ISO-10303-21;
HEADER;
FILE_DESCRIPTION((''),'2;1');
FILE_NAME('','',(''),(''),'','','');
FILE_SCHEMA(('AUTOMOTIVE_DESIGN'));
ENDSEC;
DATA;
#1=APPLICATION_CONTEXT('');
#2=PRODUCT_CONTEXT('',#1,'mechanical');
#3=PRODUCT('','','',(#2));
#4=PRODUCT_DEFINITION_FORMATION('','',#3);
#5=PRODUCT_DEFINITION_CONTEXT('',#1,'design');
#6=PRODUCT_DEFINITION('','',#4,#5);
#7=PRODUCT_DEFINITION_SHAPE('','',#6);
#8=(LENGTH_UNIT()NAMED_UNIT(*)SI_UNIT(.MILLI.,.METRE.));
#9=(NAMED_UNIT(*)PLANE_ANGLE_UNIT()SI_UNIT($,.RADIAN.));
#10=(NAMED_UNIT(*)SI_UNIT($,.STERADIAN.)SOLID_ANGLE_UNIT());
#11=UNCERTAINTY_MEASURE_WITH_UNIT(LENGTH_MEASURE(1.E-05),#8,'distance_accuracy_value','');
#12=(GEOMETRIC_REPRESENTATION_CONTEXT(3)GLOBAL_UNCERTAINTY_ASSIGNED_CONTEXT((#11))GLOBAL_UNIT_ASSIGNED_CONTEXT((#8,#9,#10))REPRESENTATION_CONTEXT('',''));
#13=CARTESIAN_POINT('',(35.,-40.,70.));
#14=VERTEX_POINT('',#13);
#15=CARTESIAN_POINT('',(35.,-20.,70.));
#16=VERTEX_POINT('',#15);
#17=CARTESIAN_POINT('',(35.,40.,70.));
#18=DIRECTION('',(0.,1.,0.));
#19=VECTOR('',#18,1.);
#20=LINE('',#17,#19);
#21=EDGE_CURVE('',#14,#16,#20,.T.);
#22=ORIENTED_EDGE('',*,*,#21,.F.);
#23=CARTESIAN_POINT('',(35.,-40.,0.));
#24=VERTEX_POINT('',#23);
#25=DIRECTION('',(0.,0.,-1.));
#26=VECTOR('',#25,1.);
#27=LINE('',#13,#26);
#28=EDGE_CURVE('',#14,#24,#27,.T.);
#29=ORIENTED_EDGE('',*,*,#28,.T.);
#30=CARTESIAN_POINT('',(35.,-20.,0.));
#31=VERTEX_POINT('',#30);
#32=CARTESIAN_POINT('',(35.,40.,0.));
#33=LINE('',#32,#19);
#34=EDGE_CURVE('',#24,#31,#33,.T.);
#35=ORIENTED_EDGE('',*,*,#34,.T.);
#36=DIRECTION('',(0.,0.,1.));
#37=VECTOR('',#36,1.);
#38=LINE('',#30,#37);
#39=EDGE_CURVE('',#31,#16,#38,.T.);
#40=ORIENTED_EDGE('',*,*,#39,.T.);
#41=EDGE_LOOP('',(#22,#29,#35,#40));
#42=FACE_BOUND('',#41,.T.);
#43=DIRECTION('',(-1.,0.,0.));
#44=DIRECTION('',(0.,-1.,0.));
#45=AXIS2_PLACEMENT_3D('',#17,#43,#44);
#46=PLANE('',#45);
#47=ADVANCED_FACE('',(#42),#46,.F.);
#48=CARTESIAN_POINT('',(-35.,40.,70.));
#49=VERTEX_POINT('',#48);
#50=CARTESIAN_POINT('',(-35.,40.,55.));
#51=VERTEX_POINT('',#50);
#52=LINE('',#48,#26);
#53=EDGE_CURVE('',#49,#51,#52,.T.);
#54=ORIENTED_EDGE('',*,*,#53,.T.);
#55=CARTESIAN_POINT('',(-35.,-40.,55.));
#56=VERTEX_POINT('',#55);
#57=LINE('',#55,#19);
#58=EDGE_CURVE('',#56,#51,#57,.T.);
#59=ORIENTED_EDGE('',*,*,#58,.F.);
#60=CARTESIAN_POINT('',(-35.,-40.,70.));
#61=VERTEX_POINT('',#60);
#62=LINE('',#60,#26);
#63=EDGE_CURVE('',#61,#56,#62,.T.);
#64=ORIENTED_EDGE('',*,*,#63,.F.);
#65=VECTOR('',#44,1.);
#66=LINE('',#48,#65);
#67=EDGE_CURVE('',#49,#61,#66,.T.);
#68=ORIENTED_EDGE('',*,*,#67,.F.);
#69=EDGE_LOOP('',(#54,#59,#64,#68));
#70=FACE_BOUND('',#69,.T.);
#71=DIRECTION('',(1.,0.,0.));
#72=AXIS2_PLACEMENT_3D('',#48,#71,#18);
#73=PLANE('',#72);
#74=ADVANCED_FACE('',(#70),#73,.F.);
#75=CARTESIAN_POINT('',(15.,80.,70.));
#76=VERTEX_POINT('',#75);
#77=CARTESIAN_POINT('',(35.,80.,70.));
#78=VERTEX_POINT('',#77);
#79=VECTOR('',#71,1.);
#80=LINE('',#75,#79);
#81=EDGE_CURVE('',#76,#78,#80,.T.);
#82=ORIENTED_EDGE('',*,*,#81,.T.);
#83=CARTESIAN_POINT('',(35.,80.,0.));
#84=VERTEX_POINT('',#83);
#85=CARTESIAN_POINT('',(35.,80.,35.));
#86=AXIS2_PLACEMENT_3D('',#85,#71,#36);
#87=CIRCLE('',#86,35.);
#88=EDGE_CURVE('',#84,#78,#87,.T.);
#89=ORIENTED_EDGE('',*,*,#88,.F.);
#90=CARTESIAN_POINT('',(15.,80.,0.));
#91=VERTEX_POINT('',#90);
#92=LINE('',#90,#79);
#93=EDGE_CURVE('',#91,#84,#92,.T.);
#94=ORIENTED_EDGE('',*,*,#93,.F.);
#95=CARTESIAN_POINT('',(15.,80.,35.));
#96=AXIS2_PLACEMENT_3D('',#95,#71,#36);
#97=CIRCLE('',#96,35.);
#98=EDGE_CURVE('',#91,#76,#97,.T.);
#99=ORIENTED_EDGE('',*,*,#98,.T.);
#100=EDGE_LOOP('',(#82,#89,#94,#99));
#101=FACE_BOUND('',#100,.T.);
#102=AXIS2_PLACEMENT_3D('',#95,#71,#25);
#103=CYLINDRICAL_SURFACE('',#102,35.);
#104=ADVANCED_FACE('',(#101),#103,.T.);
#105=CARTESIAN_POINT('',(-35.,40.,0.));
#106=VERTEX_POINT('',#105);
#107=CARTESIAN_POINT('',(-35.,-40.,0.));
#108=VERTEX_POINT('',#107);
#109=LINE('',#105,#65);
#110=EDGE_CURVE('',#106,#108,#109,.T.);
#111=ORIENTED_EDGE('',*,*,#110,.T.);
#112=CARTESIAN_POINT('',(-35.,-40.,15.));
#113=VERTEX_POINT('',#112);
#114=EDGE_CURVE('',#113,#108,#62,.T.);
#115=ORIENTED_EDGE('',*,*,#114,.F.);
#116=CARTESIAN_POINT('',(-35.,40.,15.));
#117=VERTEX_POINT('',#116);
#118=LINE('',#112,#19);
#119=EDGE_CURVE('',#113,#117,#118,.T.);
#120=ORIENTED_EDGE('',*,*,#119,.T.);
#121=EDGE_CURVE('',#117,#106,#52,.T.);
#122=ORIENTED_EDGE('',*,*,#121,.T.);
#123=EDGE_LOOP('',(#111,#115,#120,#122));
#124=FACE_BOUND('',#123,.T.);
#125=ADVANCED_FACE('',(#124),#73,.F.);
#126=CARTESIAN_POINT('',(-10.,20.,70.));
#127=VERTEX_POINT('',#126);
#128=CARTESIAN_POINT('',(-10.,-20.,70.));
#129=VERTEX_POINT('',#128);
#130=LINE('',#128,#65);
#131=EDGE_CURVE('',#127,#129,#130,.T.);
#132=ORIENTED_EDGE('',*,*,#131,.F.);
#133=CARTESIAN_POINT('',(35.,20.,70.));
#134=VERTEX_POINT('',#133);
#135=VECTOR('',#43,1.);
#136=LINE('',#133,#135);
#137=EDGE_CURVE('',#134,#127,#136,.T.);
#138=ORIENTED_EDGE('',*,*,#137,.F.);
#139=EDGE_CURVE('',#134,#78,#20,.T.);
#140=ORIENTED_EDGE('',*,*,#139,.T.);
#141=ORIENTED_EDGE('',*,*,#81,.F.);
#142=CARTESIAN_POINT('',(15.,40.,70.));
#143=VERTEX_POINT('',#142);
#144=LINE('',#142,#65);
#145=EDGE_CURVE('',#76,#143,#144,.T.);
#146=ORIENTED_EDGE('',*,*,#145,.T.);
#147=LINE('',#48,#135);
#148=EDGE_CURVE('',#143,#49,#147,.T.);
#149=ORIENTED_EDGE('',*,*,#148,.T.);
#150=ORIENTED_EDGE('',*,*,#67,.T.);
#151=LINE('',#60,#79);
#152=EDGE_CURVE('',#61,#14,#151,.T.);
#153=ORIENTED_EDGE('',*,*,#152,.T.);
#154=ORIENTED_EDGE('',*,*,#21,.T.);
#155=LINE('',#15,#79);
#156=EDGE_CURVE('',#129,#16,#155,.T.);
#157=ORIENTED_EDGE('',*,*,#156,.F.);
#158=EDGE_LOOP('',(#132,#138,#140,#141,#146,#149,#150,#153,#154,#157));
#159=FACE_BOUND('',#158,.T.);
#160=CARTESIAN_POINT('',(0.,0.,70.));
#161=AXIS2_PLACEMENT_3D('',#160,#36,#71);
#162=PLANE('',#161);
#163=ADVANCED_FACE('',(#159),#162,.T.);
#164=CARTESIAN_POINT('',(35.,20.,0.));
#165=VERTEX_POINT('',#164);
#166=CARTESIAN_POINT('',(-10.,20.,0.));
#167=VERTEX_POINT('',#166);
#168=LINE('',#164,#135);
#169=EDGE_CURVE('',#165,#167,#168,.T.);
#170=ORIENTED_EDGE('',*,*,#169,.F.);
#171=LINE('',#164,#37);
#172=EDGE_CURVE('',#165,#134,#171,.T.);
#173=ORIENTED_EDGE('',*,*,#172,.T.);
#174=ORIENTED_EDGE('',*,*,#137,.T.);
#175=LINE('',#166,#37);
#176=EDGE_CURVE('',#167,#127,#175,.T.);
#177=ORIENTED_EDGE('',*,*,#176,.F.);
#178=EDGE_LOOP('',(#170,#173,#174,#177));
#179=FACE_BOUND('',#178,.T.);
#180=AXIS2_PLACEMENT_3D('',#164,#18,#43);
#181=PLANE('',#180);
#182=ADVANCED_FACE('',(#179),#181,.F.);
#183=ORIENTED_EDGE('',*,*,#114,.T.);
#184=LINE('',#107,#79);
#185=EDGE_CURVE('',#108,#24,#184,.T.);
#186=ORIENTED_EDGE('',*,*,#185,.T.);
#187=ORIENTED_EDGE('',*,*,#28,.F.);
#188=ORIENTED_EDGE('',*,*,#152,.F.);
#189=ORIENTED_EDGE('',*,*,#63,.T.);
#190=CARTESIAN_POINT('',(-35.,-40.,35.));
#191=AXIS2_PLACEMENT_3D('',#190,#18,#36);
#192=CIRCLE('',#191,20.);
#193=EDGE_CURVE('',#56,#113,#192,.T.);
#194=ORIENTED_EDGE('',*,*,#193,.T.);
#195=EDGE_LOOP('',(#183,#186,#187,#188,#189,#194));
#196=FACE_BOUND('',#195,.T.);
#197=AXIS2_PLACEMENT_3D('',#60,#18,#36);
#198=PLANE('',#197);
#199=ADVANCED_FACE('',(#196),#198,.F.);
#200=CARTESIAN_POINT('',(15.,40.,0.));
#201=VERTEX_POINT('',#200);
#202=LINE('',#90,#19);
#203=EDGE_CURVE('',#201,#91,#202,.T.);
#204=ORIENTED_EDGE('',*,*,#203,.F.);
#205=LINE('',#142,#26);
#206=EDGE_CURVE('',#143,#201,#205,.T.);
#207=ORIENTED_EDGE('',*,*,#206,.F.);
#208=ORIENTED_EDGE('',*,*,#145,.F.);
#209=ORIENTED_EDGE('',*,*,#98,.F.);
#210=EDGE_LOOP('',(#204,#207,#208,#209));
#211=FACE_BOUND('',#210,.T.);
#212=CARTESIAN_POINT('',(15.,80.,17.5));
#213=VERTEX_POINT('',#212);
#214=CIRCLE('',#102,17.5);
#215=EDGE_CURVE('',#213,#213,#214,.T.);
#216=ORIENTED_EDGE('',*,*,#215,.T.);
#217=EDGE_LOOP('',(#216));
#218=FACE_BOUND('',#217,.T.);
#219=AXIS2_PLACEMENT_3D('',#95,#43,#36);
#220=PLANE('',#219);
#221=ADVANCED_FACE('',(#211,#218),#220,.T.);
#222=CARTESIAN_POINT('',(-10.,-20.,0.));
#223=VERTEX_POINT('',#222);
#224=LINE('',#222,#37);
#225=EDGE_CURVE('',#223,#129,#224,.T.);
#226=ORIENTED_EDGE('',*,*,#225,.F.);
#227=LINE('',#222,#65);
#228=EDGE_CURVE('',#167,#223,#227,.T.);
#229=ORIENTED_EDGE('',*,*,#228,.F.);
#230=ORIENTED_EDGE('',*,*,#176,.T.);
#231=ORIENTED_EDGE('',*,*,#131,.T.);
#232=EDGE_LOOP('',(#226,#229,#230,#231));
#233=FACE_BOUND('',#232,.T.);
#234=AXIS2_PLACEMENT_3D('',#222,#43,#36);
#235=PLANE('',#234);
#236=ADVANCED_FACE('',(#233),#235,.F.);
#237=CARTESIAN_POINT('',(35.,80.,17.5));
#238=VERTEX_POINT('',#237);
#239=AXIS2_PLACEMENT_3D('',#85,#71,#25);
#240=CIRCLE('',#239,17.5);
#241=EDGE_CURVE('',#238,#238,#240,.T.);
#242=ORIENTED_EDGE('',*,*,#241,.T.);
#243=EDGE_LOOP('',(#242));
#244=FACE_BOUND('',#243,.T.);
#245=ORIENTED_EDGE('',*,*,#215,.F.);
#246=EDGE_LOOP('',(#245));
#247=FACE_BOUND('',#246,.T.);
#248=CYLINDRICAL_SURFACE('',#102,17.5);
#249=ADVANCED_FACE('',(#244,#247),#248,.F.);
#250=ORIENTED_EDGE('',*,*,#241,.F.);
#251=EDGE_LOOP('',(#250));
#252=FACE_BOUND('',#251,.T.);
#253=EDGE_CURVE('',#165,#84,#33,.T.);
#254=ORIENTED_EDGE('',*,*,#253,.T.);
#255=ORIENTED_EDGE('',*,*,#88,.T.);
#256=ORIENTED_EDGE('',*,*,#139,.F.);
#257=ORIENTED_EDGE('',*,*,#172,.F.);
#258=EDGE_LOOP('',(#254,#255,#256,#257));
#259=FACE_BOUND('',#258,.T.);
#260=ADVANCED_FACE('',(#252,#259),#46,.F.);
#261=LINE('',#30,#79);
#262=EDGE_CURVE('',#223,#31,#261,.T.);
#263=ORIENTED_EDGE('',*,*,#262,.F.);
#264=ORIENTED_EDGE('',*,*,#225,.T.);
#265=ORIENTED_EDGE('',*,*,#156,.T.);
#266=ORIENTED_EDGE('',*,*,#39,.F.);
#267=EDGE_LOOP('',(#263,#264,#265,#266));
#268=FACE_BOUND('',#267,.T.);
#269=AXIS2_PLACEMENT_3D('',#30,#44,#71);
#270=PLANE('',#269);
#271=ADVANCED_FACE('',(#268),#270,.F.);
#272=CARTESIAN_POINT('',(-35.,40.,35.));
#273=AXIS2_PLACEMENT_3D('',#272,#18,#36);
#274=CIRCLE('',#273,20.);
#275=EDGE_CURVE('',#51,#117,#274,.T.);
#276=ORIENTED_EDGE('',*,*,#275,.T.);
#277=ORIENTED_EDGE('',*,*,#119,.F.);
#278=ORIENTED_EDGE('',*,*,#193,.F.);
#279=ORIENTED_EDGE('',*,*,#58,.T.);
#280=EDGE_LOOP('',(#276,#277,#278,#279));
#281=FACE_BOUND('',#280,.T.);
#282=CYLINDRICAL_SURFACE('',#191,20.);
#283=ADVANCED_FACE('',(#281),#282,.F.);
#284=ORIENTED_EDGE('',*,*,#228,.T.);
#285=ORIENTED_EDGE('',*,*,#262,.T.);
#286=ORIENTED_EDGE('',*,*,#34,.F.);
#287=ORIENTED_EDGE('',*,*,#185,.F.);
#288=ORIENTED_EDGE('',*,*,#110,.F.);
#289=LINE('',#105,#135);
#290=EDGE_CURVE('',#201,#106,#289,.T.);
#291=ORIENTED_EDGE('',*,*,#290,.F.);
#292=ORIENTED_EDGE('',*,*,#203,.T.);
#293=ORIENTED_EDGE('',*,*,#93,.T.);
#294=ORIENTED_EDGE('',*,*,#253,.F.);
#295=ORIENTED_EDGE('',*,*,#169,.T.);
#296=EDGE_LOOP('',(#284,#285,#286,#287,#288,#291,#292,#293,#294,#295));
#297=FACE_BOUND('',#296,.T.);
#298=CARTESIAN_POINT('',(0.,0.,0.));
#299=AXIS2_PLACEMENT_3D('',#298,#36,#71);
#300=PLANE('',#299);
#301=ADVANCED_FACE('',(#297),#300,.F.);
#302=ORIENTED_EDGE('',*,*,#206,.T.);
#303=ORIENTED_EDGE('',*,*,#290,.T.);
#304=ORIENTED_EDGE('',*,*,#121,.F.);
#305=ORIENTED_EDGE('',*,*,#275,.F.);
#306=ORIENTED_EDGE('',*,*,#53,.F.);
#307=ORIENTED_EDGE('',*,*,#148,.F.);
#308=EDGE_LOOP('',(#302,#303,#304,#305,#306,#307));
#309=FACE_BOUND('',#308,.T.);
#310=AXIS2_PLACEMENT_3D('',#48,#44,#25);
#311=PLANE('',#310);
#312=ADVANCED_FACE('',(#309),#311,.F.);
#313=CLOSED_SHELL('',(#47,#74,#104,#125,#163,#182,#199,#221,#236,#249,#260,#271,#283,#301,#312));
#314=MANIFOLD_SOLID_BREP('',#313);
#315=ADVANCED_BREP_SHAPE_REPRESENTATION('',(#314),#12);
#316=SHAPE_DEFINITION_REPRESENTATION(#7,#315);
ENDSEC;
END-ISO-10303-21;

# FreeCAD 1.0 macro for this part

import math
import FreeCAD as App
import Part
import Sketcher


def add_polygon(sketch, points):
    """Adds a closed chain of lines whose ends are joined by coincident constraints."""
    first, n = sketch.GeometryCount, len(points)
    for a, b in zip(points, points[1:] + points[:1]):
        sketch.addGeometry(Part.LineSegment(App.Vector(*a, 0), App.Vector(*b, 0)), False)
    for i in range(n):
        sketch.addConstraint(Sketcher.Constraint("Coincident", first + i, 2, first + (i + 1) % n, 1))

doc = App.newDocument("Part")
body = doc.addObject("PartDesign::Body", "Body")

sketch1 = body.newObject("Sketcher::SketchObject", "Sketch")
sketch1.AttachmentSupport = (doc.getObject("XY_Plane"), [""])
sketch1.MapMode = "FlatFace"
add_polygon(sketch1, [(-35, 40), (-35, -40), (35, -40), (35, 40)])
sketch1.addConstraint(Sketcher.Constraint("Vertical", 0))
sketch1.addConstraint(Sketcher.Constraint("Horizontal", 1))
sketch1.addConstraint(Sketcher.Constraint("Vertical", 2))
sketch1.addConstraint(Sketcher.Constraint("Horizontal", 3))
sketch1.addConstraint(Sketcher.Constraint("Symmetric", 0, 2, 2, 2, -1, 1))
sketch1.addConstraint(Sketcher.Constraint("DistanceX", 1, 1, 1, 2, 70.0))
sketch1.addConstraint(Sketcher.Constraint("DistanceY", 0, 2, 0, 1, 80.0))
pad1 = body.newObject("PartDesign::Pad", "Pad")
pad1.Profile = sketch1
pad1.Length = 70

sketch2 = body.newObject("Sketcher::SketchObject", "Sketch001")
sketch2.AttachmentSupport = (doc.getObject("XY_Plane"), [""])
sketch2.MapMode = "FlatFace"
sketch2.AttachmentOffset = App.Placement(App.Vector(0, 0, 70), App.Rotation())
add_polygon(sketch2, [(-10, 20), (-10, -20), (35, -20), (35, 20)])
sketch2.addConstraint(Sketcher.Constraint("Vertical", 0))
sketch2.addConstraint(Sketcher.Constraint("Horizontal", 1))
sketch2.addConstraint(Sketcher.Constraint("Vertical", 2))
sketch2.addConstraint(Sketcher.Constraint("Horizontal", 3))
sketch2.addConstraint(Sketcher.Constraint("DistanceX", 1, 1, 1, 2, 45.0))
sketch2.addConstraint(Sketcher.Constraint("DistanceY", 0, 2, 0, 1, 40.0))
sketch2.addConstraint(Sketcher.Constraint("DistanceX", 0, 2, -1, 1, 10.0))
sketch2.addConstraint(Sketcher.Constraint("DistanceY", 0, 2, -1, 1, 20.0))
pocket1 = body.newObject("PartDesign::Pocket", "Pocket")
pocket1.Profile = sketch2
pocket1.Length = 70

sketch3 = body.newObject("Sketcher::SketchObject", "Sketch002")
sketch3.AttachmentSupport = (doc.getObject("XZ_Plane"), [""])
sketch3.MapMode = "FlatFace"
sketch3.AttachmentOffset = App.Placement(App.Vector(0, 0, -40), App.Rotation())
sketch3.addGeometry(Part.LineSegment(App.Vector(-35, 15, 0), App.Vector(-35, 55, 0)), False)
sketch3.addGeometry(Part.ArcOfCircle(Part.Circle(App.Vector(-35, 35, 0), App.Vector(0, 0, 1), 20), math.radians(-90), math.radians(90)), False)
sketch3.addConstraint(Sketcher.Constraint("Coincident", 0, 1, 1, 1))
sketch3.addConstraint(Sketcher.Constraint("Coincident", 1, 2, 0, 2))
sketch3.addConstraint(Sketcher.Constraint("Vertical", 0))
sketch3.addConstraint(Sketcher.Constraint("Vertical", 1, 3, 0, 1))
sketch3.addConstraint(Sketcher.Constraint("Radius", 1, 20.0))
sketch3.addConstraint(Sketcher.Constraint("DistanceX", 1, 3, -1, 1, 35.0))
sketch3.addConstraint(Sketcher.Constraint("DistanceY", -1, 1, 1, 3, 35.0))
pocket2 = body.newObject("PartDesign::Pocket", "Pocket001")
pocket2.Profile = sketch3
pocket2.Type = "ThroughAll"
pocket2.Midplane = True

sketch4 = body.newObject("Sketcher::SketchObject", "Sketch003")
sketch4.AttachmentSupport = (doc.getObject("YZ_Plane"), [""])
sketch4.MapMode = "FlatFace"
sketch4.AttachmentOffset = App.Placement(App.Vector(0, 0, 35), App.Rotation())
sketch4.addGeometry(Part.LineSegment(App.Vector(80, 70, 0), App.Vector(40, 70, 0)), False)
sketch4.addGeometry(Part.LineSegment(App.Vector(40, 70, 0), App.Vector(40, 0, 0)), False)
sketch4.addGeometry(Part.LineSegment(App.Vector(40, 0, 0), App.Vector(80, 0, 0)), False)
sketch4.addGeometry(Part.ArcOfCircle(Part.Circle(App.Vector(80, 35, 0), App.Vector(0, 0, 1), 35), math.radians(-90), math.radians(90)), False)
sketch4.addConstraint(Sketcher.Constraint("Coincident", 0, 2, 1, 1))
sketch4.addConstraint(Sketcher.Constraint("Coincident", 1, 2, 2, 1))
sketch4.addConstraint(Sketcher.Constraint("Tangent", 2, 2, 3, 1))
sketch4.addConstraint(Sketcher.Constraint("Tangent", 3, 2, 0, 1))
sketch4.addConstraint(Sketcher.Constraint("Horizontal", 0))
sketch4.addConstraint(Sketcher.Constraint("Vertical", 1))
sketch4.addConstraint(Sketcher.Constraint("Horizontal", 2))
sketch4.addConstraint(Sketcher.Constraint("PointOnObject", 1, 2, -1))
sketch4.addConstraint(Sketcher.Constraint("Radius", 3, 35.0))
sketch4.addConstraint(Sketcher.Constraint("DistanceX", 0, 2, 0, 1, 40.0))
sketch4.addConstraint(Sketcher.Constraint("DistanceX", -1, 1, 3, 3, 80.0))
pad2 = body.newObject("PartDesign::Pad", "Pad001")
pad2.Profile = sketch4
pad2.Length = 20
pad2.Reversed = True

sketch5 = body.newObject("Sketcher::SketchObject", "Sketch004")
sketch5.AttachmentSupport = (doc.getObject("YZ_Plane"), [""])
sketch5.MapMode = "FlatFace"
sketch5.AttachmentOffset = App.Placement(App.Vector(0, 0, 35), App.Rotation())
sketch5.addGeometry(Part.Circle(App.Vector(80, 35, 0), App.Vector(0, 0, 1), 18), False)
sketch5.addConstraint(Sketcher.Constraint("Diameter", 0, 35.0))
sketch5.addConstraint(Sketcher.Constraint("DistanceX", -1, 1, 0, 3, 80.0))
sketch5.addConstraint(Sketcher.Constraint("DistanceY", -1, 1, 0, 3, 35.0))
pocket3 = body.newObject("PartDesign::Pocket", "Pocket002")
pocket3.Profile = sketch5
pocket3.Length = 20

doc.recompute()
